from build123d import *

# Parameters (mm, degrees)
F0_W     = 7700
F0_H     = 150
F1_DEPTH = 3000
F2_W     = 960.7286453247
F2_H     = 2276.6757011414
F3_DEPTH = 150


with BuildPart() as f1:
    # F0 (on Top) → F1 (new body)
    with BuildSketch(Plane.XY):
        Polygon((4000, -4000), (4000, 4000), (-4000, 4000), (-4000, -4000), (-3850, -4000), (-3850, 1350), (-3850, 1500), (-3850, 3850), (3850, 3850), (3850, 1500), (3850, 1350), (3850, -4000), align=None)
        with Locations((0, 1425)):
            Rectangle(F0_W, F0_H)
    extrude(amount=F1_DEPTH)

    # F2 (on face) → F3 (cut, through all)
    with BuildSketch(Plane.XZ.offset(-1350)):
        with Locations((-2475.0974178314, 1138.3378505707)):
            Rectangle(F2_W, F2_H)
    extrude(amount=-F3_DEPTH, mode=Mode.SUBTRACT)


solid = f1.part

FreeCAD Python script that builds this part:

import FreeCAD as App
import Part
import Sketcher

V = App.Vector
Q = App.Units.Quantity


def add_polygon(sketch, points):
    """Adds a closed chain of lines whose ends are joined by coincident constraints."""
    first, n = sketch.GeometryCount, len(points)
    for a, b in zip(points, points[1:] + points[:1]):
        sketch.addGeometry(Part.LineSegment(App.Vector(*a, 0), App.Vector(*b, 0)), False)
    for i in range(n):
        sketch.addConstraint(Sketcher.Constraint("Coincident", first + i, 2, first + (i + 1) % n, 1))

doc = App.newDocument("Part")
body = doc.addObject("PartDesign::Body", "Body")

sketch1 = body.newObject("Sketcher::SketchObject", "Sketch")
sketch1.AttachmentSupport = (doc.getObject("XY_Plane"), [""])
sketch1.MapMode = "FlatFace"
add_polygon(sketch1, [(4000, -4000), (4000, 4000), (-4000, 4000), (-4000, -4000), (-3850, -4000), (-3850, 1350), (3850, 1350), (3850, -4000)])
add_polygon(sketch1, [(-3850, 1500), (-3850, 3850), (3850, 3850), (3850, 1500)])
sketch1.addConstraint(Sketcher.Constraint("Vertical", 0))
sketch1.addConstraint(Sketcher.Constraint("Horizontal", 1))
sketch1.addConstraint(Sketcher.Constraint("Vertical", 2))
sketch1.addConstraint(Sketcher.Constraint("Horizontal", 3))
sketch1.addConstraint(Sketcher.Constraint("Vertical", 4))
sketch1.addConstraint(Sketcher.Constraint("Horizontal", 5))
sketch1.addConstraint(Sketcher.Constraint("Vertical", 6))
sketch1.addConstraint(Sketcher.Constraint("Horizontal", 7))
sketch1.addConstraint(Sketcher.Constraint("Vertical", 8))
sketch1.addConstraint(Sketcher.Constraint("Horizontal", 9))
sketch1.addConstraint(Sketcher.Constraint("Vertical", 10))
sketch1.addConstraint(Sketcher.Constraint("Horizontal", 11))
sketch1.addConstraint(Sketcher.Constraint("Symmetric", 0, 2, 2, 2, -1, 1))
sketch1.addConstraint(Sketcher.Constraint("Symmetric", 3, 2, 6, 2, -2))
sketch1.addConstraint(Sketcher.Constraint("Vertical", 4, 2, 8, 2))
sketch1.addConstraint(Sketcher.Constraint("Vertical", 6, 2, 9, 2))
sketch1.addConstraint(Sketcher.Constraint("Equal", 1, 0))
sketch1.addConstraint(Sketcher.Constraint("DistanceX", 1, 2, 1, 1, Q("8000 mm")))
sketch1.addConstraint(Sketcher.Constraint("DistanceX", 3, 1, 3, 2, Q("150 mm")))
sketch1.addConstraint(Sketcher.Constraint("DistanceY", 4, 1, 4, 2, Q("5350 mm")))
sketch1.addConstraint(Sketcher.Constraint("DistanceY", 8, 1, 8, 2, Q("2350 mm")))
sketch1.addConstraint(Sketcher.Constraint("DistanceY", -1, 1, 8, 2, Q("3850 mm")))
pad1 = body.newObject("PartDesign::Pad", "Pad")
pad1.Profile = sketch1
pad1.Length = 3000

sketch2 = body.newObject("Sketcher::SketchObject", "Sketch001")
sketch2.AttachmentSupport = (doc.getObject("XZ_Plane"), [""])
sketch2.MapMode = "FlatFace"
sketch2.AttachmentOffset = App.Placement(V(0, 0, -1350), App.Rotation())
add_polygon(sketch2, [(-2955, 2277), (-2955, 0), (-1995, 0), (-1995, 2277)])
sketch2.addConstraint(Sketcher.Constraint("Vertical", 0))
sketch2.addConstraint(Sketcher.Constraint("Horizontal", 1))
sketch2.addConstraint(Sketcher.Constraint("Vertical", 2))
sketch2.addConstraint(Sketcher.Constraint("Horizontal", 3))
sketch2.addConstraint(Sketcher.Constraint("PointOnObject", 0, 2, -1))
sketch2.addConstraint(Sketcher.Constraint("DistanceY", 0, 2, 0, 1, Q("2276.675701 mm")))
sketch2.addConstraint(Sketcher.Constraint("DistanceX", 1, 1, 1, 2, Q("960.728645 mm")))
sketch2.addConstraint(Sketcher.Constraint("DistanceX", 0, 2, -1, 1, Q("2955.46174 mm")))
pocket1 = body.newObject("PartDesign::Pocket", "Pocket")
pocket1.Profile = sketch2
pocket1.Length = 150

doc.recompute()
